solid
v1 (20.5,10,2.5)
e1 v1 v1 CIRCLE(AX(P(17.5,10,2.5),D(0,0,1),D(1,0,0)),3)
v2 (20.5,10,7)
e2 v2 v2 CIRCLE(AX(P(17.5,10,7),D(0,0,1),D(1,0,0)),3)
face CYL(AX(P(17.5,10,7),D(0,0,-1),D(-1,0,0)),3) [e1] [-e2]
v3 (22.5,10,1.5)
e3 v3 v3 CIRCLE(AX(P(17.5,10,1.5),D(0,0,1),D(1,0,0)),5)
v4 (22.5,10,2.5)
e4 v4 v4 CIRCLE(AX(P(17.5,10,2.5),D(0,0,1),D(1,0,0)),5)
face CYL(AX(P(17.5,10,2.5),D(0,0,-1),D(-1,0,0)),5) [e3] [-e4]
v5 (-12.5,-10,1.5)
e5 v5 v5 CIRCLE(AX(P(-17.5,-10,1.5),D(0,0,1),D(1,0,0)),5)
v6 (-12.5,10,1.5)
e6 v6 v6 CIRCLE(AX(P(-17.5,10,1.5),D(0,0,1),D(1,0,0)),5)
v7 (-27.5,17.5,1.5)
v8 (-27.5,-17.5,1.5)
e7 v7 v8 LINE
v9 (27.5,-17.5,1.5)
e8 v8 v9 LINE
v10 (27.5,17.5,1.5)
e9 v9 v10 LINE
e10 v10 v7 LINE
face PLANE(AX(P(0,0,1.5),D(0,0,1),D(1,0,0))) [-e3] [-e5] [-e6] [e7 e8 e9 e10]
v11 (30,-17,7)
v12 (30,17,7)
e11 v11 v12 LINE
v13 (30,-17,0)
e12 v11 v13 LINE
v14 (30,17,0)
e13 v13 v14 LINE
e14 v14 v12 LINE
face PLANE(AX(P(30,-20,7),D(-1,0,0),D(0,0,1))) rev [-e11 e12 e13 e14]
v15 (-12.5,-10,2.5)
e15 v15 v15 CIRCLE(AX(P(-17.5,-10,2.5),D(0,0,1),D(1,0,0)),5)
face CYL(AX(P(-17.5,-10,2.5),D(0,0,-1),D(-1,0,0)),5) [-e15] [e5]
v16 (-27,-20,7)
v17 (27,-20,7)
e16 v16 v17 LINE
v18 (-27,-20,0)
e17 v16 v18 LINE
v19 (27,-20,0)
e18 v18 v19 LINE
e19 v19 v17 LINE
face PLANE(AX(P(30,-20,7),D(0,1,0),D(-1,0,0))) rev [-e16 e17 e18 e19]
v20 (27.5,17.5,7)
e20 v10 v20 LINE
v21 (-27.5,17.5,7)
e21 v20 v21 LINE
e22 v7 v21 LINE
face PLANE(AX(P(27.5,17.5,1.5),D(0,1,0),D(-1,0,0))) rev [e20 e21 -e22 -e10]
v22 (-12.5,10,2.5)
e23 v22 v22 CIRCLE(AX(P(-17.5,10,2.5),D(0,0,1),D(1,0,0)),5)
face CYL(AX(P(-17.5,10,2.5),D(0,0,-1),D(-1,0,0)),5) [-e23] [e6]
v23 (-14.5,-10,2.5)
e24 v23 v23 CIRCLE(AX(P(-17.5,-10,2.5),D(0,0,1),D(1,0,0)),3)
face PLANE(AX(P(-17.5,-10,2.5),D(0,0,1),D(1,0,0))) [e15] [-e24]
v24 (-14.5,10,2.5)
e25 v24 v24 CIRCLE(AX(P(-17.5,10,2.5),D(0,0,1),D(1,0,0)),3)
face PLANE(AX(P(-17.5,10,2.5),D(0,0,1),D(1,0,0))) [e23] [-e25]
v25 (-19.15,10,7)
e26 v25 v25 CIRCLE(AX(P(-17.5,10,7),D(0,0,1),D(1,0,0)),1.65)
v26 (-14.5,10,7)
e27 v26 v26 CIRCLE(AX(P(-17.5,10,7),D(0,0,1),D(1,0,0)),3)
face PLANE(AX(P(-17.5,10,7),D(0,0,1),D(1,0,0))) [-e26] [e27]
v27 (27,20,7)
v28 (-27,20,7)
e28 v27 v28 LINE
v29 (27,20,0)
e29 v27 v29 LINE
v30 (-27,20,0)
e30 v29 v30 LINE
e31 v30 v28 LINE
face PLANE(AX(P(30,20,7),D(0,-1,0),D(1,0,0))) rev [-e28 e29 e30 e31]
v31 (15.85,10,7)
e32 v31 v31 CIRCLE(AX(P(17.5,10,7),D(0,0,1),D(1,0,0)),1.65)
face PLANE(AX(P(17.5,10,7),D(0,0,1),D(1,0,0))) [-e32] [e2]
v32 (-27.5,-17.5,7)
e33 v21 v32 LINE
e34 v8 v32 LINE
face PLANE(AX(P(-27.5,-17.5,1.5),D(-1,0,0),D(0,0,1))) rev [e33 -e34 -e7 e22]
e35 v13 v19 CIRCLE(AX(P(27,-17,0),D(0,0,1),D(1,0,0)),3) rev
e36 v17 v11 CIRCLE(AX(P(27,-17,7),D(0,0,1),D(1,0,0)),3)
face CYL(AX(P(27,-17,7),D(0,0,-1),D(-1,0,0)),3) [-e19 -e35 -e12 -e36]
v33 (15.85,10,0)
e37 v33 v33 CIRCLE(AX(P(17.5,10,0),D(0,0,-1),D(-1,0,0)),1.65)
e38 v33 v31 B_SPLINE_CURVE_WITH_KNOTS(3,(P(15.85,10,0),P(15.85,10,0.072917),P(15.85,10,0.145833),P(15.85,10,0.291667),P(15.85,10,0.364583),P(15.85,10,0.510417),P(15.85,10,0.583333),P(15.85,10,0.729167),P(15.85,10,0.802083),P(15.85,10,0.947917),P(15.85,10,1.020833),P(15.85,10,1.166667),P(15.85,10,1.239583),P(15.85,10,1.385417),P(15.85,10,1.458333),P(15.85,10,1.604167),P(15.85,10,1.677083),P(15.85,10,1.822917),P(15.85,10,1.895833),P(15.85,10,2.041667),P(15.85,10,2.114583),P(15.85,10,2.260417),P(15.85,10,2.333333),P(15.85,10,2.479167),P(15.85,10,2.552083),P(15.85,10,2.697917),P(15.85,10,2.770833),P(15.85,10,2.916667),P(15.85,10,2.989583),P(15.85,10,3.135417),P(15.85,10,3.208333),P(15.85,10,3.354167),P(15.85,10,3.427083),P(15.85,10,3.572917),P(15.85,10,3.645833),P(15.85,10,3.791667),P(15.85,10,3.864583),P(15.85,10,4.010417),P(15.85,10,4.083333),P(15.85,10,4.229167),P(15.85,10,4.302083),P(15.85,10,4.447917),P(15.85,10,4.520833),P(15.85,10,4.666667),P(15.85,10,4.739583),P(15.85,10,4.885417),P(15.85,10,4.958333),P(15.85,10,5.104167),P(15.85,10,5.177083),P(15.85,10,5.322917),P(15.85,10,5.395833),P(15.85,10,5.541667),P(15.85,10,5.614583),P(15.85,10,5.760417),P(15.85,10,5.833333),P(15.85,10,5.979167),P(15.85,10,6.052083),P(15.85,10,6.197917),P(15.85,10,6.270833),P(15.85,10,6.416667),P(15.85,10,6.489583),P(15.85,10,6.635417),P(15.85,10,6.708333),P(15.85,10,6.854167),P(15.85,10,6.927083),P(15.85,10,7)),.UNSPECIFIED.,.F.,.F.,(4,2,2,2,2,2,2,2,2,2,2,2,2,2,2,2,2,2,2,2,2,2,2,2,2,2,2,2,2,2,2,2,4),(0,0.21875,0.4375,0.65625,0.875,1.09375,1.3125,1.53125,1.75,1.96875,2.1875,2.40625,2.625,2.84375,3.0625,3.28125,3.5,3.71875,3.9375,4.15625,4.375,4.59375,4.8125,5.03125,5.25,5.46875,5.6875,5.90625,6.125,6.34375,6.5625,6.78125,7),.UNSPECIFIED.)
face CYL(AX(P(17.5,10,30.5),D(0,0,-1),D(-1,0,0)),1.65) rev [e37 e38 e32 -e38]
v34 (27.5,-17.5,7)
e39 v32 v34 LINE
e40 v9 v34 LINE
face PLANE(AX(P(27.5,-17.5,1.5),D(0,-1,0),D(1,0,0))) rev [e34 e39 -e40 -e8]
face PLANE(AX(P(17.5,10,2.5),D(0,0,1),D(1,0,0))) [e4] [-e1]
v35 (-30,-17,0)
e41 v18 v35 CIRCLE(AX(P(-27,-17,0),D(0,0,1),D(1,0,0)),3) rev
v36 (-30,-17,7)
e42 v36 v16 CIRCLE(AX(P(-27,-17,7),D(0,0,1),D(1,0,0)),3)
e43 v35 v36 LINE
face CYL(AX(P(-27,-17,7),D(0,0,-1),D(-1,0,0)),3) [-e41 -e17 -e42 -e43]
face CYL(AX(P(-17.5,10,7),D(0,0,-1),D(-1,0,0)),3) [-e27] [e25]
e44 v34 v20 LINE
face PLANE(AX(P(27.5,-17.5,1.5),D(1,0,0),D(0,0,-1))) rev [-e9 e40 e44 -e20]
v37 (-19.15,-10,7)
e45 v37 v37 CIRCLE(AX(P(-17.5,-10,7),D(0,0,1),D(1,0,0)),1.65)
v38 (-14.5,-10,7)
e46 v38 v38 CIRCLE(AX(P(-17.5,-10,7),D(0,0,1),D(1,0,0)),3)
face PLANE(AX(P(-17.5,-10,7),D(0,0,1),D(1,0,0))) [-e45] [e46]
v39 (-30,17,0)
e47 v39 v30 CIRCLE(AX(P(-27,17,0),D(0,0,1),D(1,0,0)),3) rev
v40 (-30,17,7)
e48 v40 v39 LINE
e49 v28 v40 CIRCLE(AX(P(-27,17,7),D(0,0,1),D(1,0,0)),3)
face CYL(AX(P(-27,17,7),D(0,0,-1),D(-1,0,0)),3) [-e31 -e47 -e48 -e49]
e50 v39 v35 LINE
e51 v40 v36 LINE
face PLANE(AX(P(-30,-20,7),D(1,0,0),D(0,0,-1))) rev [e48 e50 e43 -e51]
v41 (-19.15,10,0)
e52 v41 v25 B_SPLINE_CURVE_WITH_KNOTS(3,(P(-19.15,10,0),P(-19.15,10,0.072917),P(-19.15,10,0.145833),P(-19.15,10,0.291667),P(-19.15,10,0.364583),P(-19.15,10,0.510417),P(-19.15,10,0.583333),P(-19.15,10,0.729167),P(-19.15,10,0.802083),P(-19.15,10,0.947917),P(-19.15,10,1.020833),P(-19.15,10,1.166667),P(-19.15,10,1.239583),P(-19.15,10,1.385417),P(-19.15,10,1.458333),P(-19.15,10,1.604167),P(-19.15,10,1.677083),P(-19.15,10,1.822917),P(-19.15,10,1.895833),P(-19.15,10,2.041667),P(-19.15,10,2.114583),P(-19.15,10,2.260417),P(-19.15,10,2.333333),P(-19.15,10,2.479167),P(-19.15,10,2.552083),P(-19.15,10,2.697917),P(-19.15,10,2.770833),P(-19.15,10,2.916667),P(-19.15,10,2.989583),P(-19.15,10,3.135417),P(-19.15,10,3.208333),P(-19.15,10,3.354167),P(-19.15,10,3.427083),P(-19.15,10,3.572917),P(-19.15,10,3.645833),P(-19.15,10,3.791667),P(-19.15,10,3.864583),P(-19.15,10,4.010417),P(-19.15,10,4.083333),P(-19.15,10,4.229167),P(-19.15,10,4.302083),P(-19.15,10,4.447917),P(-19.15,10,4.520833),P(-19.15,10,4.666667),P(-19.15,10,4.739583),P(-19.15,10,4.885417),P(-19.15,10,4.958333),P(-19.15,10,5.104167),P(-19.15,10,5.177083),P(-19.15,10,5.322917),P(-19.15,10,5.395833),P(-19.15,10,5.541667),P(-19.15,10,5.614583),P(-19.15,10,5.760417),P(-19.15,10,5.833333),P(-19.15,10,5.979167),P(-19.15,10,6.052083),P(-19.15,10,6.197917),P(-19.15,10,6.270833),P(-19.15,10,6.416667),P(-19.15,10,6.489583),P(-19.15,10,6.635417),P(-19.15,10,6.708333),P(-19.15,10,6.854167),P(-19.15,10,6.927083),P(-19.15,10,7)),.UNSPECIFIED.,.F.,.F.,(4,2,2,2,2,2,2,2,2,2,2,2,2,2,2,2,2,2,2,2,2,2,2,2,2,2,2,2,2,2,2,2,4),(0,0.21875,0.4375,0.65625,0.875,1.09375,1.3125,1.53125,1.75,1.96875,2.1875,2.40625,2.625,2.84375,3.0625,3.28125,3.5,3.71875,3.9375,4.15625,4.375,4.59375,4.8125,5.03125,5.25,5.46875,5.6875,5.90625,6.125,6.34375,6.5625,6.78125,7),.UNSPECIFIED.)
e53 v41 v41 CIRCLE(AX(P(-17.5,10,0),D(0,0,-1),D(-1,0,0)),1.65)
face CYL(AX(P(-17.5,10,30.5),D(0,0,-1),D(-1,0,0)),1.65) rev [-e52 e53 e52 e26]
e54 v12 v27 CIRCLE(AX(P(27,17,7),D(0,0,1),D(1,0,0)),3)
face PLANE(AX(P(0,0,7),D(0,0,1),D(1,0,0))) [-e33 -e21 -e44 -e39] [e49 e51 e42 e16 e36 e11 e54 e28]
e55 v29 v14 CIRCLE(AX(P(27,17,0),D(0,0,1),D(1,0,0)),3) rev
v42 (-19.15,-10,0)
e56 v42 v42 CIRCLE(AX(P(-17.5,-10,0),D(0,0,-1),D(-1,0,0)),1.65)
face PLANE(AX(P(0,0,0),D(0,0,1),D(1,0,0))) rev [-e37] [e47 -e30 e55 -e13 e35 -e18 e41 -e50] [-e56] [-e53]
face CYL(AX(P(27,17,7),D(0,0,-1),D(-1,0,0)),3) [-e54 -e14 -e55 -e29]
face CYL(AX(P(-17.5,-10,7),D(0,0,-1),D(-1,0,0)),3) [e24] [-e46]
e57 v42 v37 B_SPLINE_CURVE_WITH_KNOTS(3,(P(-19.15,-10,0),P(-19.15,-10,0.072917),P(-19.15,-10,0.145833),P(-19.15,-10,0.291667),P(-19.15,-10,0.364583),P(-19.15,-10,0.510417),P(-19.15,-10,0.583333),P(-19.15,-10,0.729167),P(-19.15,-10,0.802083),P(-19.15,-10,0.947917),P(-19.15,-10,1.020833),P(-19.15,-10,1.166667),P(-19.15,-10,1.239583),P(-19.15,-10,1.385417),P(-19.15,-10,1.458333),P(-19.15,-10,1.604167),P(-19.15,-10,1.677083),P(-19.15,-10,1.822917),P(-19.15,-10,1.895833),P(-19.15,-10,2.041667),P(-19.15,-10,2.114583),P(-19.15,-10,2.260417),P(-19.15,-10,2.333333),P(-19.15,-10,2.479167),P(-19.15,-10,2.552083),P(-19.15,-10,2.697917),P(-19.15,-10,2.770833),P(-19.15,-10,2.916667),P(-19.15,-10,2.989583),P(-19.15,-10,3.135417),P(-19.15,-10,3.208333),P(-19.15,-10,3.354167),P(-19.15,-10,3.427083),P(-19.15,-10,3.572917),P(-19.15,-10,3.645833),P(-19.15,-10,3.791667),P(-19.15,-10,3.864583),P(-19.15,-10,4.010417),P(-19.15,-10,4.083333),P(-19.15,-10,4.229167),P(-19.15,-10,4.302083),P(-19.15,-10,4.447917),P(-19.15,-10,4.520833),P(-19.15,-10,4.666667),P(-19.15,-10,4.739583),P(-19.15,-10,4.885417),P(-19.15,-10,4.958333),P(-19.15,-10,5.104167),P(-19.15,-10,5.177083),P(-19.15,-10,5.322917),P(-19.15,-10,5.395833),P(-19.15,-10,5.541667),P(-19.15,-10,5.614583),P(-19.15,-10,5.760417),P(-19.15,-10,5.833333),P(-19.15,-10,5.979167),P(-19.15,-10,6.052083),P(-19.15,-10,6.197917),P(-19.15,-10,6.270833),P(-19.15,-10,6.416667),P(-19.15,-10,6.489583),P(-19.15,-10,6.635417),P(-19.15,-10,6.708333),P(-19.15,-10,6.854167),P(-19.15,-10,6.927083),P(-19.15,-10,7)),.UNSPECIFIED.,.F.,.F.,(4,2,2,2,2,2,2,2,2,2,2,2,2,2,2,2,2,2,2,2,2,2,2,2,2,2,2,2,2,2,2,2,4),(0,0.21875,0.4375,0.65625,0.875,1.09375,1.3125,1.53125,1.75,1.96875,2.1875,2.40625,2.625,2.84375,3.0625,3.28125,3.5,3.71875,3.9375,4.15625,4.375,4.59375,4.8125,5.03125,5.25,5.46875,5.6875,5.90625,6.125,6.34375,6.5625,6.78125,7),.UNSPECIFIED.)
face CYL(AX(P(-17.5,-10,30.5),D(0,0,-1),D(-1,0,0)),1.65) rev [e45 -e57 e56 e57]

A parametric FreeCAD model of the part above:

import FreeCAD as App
import Part
import Sketcher

V = App.Vector


def edges_at(feature, points):
    """Names of the edges that pass closest to the given points."""
    edges = feature.Shape.Edges
    near = lambda p: min(range(len(edges)), key=lambda i: edges[i].distToShape(Part.Vertex(*p))[0])
    return sorted({f"Edge{near(p) + 1}" for p in points})


def add_polygon(sketch, points):
    """Adds a closed chain of lines whose ends are joined by coincident constraints."""
    first, n = sketch.GeometryCount, len(points)
    for a, b in zip(points, points[1:] + points[:1]):
        sketch.addGeometry(Part.LineSegment(App.Vector(*a, 0), App.Vector(*b, 0)), False)
    for i in range(n):
        sketch.addConstraint(Sketcher.Constraint("Coincident", first + i, 2, first + (i + 1) % n, 1))

doc = App.newDocument("Part")
body = doc.addObject("PartDesign::Body", "Body")

sketch1 = doc.addObject("Sketcher::SketchObject", "Sketch")
body.addObject(sketch1)
sketch1.AttachmentSupport = (doc.XY_Plane, [""])
sketch1.MapMode = "FlatFace"
add_polygon(sketch1, [(-30, 20), (-30, -20), (30, -20), (30, 20)])
sketch1.addConstraint([
    Sketcher.Constraint("Vertical", 0),
    Sketcher.Constraint("Horizontal", 1),
    Sketcher.Constraint("Vertical", 2),
    Sketcher.Constraint("Horizontal", 3),
    Sketcher.Constraint("Symmetric", 0, 2, 2, 2, -1, 1),
    Sketcher.Constraint("DistanceX", 1, 1, 1, 2, 60.0),
    Sketcher.Constraint("DistanceY", 0, 2, 0, 1, 40.0),
])
pad1 = doc.addObject("PartDesign::Pad", "Pad")
body.addObject(pad1)
pad1.Profile = sketch1
pad1.Length = 7

sketch2 = doc.addObject("Sketcher::SketchObject", "Sketch001")
body.addObject(sketch2)
sketch2.AttachmentSupport = (doc.XY_Plane, [""])
sketch2.MapMode = "FlatFace"
sketch2.AttachmentOffset = App.Placement(V(0, 0, 7), App.Rotation())
add_polygon(sketch2, [(-27.5, 17.5), (-27.5, -17.5), (27.5, -17.5), (27.5, 17.5)])
sketch2.addConstraint([
    Sketcher.Constraint("Vertical", 0),
    Sketcher.Constraint("Horizontal", 1),
    Sketcher.Constraint("Vertical", 2),
    Sketcher.Constraint("Horizontal", 3),
    Sketcher.Constraint("Symmetric", 0, 2, 2, 2, -1, 1),
    Sketcher.Constraint("DistanceX", 1, 1, 1, 2, 55.0),
    Sketcher.Constraint("DistanceY", 0, 2, 0, 1, 35.0),
])
pocket1 = doc.addObject("PartDesign::Pocket", "Pocket")
body.addObject(pocket1)
pocket1.Profile = sketch2
pocket1.Length = 5.5
doc.recompute()

fillet = doc.addObject("PartDesign::Fillet", "Fillet")
body.addObject(fillet)
fillet.Base = (pocket1, edges_at(pocket1, [
    (-30, 20, 3.5),
    (30, 20, 3.5),
    (30, -20, 3.5),
    (-30, -20, 3.5),
]))
fillet.Radius = 3

sketch3 = doc.addObject("Sketcher::SketchObject", "Sketch002")
body.addObject(sketch3)
sketch3.AttachmentSupport = (doc.XY_Plane, [""])
sketch3.MapMode = "FlatFace"
sketch3.addGeometry([
    Part.Circle(V(17.5, 10, 0), V(0, 0, 1), 1.65),
    Part.Circle(V(-17.5, 10, 0), V(0, 0, 1), 1.65),
    Part.Circle(V(-17.5, -10, 0), V(0, 0, 1), 1.65),
], False)
sketch3.addConstraint([
    Sketcher.Constraint("Equal", 0, 1),
    Sketcher.Constraint("Equal", 1, 2),
    Sketcher.Constraint("Symmetric", 0, 3, 2, 3, -1, 1),
    Sketcher.Constraint("Symmetric", 0, 3, 1, 3, -2),
    Sketcher.Constraint("Diameter", 0, 3.3),
    Sketcher.Constraint("DistanceY", -1, 1, 0, 3, 10.0),
    Sketcher.Constraint("DistanceX", 1, 3, 0, 3, 35.0),
])
pocket2 = doc.addObject("PartDesign::Pocket", "Pocket001")
body.addObject(pocket2)
pocket2.Profile = sketch3
pocket2.Length = 30.5
pocket2.Reversed = True

sketch4 = doc.addObject("Sketcher::SketchObject", "Sketch003")
body.addObject(sketch4)
sketch4.AttachmentSupport = (doc.XY_Plane, [""])
sketch4.MapMode = "FlatFace"
sketch4.AttachmentOffset = App.Placement(V(0, 0, 1.5), App.Rotation())
sketch4.addGeometry([
    Part.Circle(V(-17.5, 10, 0), V(0, 0, 1), 5),
    Part.Circle(V(-17.5, 10, 0), V(0, 0, 1), 1.65),
    Part.Circle(V(17.5, 10, 0), V(0, 0, 1), 5),
    Part.Circle(V(17.5, 10, 0), V(0, 0, 1), 1.65),
    Part.Circle(V(-17.5, -10, 0), V(0, 0, 1), 5),
    Part.Circle(V(-17.5, -10, 0), V(0, 0, 1), 1.65),
], False)
sketch4.addConstraint([
    Sketcher.Constraint("Coincident", 1, 3, 0, 3),
    Sketcher.Constraint("Coincident", 3, 3, 2, 3),
    Sketcher.Constraint("Coincident", 5, 3, 4, 3),
    Sketcher.Constraint("Equal", 0, 2),
    Sketcher.Constraint("Equal", 1, 3),
    Sketcher.Constraint("Equal", 2, 4),
    Sketcher.Constraint("Equal", 3, 5),
    Sketcher.Constraint("Symmetric", 2, 3, 4, 3, -1, 1),
    Sketcher.Constraint("Symmetric", 0, 3, 2, 3, -2),
    Sketcher.Constraint("Diameter", 0, 10.0),
    Sketcher.Constraint("Diameter", 1, 3.3),
    Sketcher.Constraint("DistanceY", -1, 1, 0, 3, 10.0),
    Sketcher.Constraint("DistanceX", 0, 3, 2, 3, 35.0),
])
pad2 = doc.addObject("PartDesign::Pad", "Pad001")
body.addObject(pad2)
pad2.Profile = sketch4
pad2.Length = 1

sketch5 = doc.addObject("Sketcher::SketchObject", "Sketch004")
body.addObject(sketch5)
sketch5.AttachmentSupport = (doc.XY_Plane, [""])
sketch5.MapMode = "FlatFace"
sketch5.AttachmentOffset = App.Placement(V(0, 0, 2.5), App.Rotation())
sketch5.addGeometry([
    Part.Circle(V(-17.5, 10, 0), V(0, 0, 1), 3),
    Part.Circle(V(-17.5, 10, 0), V(0, 0, 1), 1.65),
    Part.Circle(V(17.5, 10, 0), V(0, 0, 1), 3),
    Part.Circle(V(17.5, 10, 0), V(0, 0, 1), 1.65),
    Part.Circle(V(-17.5, -10, 0), V(0, 0, 1), 3),
    Part.Circle(V(-17.5, -10, 0), V(0, 0, 1), 1.65),
], False)
sketch5.addConstraint([
    Sketcher.Constraint("Coincident", 1, 3, 0, 3),
    Sketcher.Constraint("Coincident", 3, 3, 2, 3),
    Sketcher.Constraint("Coincident", 5, 3, 4, 3),
    Sketcher.Constraint("Equal", 0, 2),
    Sketcher.Constraint("Equal", 1, 3),
    Sketcher.Constraint("Equal", 2, 4),
    Sketcher.Constraint("Equal", 3, 5),
    Sketcher.Constraint("Symmetric", 2, 3, 4, 3, -1, 1),
    Sketcher.Constraint("Symmetric", 0, 3, 2, 3, -2),
    Sketcher.Constraint("Diameter", 0, 6.0),
    Sketcher.Constraint("Diameter", 1, 3.3),
    Sketcher.Constraint("DistanceY", -1, 1, 0, 3, 10.0),
    Sketcher.Constraint("DistanceX", 0, 3, 2, 3, 35.0),
])
pad3 = doc.addObject("PartDesign::Pad", "Pad002")
body.addObject(pad3)
pad3.Profile = sketch5
pad3.Length = 4.5

doc.recompute()
